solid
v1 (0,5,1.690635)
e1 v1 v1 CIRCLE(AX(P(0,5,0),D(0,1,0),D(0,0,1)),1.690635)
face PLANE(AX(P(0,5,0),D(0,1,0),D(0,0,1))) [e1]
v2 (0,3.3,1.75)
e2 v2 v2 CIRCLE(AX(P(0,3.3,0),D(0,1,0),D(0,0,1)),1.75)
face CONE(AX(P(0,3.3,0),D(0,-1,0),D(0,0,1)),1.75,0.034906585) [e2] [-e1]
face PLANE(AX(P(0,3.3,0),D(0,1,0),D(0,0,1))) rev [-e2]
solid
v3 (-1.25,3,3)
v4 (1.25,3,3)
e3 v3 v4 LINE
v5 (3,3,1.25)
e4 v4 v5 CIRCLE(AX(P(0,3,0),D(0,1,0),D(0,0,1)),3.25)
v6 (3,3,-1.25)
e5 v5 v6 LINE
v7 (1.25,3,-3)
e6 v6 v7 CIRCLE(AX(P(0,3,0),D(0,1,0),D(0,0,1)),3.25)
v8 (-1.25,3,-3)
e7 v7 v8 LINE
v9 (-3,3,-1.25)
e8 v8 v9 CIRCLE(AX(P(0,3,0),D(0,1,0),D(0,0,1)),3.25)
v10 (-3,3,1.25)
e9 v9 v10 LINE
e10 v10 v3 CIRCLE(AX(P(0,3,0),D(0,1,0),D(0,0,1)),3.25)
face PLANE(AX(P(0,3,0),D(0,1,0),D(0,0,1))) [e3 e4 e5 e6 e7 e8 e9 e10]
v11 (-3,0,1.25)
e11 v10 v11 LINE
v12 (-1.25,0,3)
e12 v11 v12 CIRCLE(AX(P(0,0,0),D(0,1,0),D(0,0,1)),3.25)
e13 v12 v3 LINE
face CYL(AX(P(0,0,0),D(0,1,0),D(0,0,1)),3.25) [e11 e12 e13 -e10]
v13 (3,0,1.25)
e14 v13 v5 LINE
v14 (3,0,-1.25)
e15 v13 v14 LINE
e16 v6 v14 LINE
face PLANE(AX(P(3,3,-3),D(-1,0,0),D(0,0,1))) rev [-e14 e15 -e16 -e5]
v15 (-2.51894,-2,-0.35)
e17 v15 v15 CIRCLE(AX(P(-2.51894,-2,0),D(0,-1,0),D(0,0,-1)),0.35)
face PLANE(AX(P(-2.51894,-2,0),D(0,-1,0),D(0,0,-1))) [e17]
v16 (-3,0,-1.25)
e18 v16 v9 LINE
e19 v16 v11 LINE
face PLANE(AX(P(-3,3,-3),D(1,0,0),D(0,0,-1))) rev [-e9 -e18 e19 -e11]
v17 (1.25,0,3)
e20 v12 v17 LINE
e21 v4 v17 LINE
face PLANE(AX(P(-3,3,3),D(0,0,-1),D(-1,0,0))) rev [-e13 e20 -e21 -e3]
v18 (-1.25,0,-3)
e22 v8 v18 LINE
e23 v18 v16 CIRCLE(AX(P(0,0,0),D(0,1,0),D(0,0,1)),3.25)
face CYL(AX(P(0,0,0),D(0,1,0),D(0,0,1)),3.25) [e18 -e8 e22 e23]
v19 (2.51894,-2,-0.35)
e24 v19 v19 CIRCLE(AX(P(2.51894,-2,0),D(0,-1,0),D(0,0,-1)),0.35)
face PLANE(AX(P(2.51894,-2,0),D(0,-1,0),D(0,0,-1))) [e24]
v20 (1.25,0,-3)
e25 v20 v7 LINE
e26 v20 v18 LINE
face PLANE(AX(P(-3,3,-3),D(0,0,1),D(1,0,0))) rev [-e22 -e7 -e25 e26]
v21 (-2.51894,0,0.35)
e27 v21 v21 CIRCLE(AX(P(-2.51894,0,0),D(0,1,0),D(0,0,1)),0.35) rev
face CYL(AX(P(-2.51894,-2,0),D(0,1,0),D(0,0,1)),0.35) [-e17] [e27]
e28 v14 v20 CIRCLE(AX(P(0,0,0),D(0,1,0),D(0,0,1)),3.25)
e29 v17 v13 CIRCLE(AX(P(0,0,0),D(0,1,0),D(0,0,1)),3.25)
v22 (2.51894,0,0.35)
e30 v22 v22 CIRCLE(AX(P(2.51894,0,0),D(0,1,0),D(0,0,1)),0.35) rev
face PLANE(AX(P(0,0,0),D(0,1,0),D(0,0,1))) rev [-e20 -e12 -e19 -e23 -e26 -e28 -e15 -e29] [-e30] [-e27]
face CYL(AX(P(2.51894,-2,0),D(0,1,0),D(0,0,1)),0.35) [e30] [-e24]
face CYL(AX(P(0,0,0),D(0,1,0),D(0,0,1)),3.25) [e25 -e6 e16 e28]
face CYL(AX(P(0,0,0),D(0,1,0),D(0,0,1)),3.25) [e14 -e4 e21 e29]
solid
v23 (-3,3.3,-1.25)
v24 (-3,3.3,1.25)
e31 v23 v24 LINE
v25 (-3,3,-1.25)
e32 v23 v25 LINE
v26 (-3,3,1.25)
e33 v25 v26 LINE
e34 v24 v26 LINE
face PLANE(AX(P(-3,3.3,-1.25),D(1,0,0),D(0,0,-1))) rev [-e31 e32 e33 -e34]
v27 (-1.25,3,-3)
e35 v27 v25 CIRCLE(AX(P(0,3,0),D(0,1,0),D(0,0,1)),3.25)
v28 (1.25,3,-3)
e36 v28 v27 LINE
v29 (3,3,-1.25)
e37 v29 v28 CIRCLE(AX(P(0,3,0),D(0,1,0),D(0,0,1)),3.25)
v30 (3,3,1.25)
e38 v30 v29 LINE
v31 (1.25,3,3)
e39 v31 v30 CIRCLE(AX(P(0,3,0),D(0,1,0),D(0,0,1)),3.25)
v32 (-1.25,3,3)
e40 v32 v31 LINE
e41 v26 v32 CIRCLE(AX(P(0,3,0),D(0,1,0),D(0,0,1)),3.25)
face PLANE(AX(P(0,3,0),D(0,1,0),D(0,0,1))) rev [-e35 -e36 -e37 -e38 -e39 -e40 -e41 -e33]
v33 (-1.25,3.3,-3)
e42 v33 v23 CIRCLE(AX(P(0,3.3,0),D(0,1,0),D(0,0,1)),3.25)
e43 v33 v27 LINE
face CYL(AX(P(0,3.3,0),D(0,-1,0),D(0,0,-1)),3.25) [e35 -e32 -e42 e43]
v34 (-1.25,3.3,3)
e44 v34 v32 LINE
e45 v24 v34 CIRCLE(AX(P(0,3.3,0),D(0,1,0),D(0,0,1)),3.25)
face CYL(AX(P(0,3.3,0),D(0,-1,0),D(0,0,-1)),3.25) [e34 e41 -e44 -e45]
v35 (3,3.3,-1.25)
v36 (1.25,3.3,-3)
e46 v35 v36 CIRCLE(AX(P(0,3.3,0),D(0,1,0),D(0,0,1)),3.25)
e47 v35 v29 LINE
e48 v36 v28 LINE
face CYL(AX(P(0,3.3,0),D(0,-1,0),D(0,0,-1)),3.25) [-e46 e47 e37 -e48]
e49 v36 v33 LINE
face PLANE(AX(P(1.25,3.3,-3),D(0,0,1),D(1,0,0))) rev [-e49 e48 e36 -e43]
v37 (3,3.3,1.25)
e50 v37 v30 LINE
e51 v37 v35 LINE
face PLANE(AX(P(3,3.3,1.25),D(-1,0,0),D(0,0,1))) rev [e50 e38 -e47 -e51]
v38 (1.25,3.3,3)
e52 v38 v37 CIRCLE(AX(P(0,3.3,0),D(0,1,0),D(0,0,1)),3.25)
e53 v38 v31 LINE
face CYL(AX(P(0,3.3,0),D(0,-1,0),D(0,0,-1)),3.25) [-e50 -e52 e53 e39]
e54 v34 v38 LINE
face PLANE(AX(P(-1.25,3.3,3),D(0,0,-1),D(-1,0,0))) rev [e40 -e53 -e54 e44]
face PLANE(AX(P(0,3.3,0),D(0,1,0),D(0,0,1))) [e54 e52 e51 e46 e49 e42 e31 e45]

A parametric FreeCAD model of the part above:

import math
import FreeCAD as App
import Part
import Sketcher

V = App.Vector


def add_polygon(sketch, points):
    """Adds a closed chain of lines whose ends are joined by coincident constraints."""
    first, n = sketch.GeometryCount, len(points)
    for a, b in zip(points, points[1:] + points[:1]):
        sketch.addGeometry(Part.LineSegment(App.Vector(*a, 0), App.Vector(*b, 0)), False)
    for i in range(n):
        sketch.addConstraint(Sketcher.Constraint("Coincident", first + i, 2, first + (i + 1) % n, 1))

doc = App.newDocument("Part")
body = doc.addObject("PartDesign::Body", "Body")

sketch1 = body.newObject("Sketcher::SketchObject", "Sketch")
sketch1.AttachmentSupport = (doc.getObject("XZ_Plane"), [""])
sketch1.MapMode = "FlatFace"
add_polygon(sketch1, [(-3, -3), (-3, 3), (3, 3), (3, -3)])
sketch1.addConstraint(Sketcher.Constraint("Vertical", 0))
sketch1.addConstraint(Sketcher.Constraint("Horizontal", 1))
sketch1.addConstraint(Sketcher.Constraint("Vertical", 2))
sketch1.addConstraint(Sketcher.Constraint("Horizontal", 3))
sketch1.addConstraint(Sketcher.Constraint("Symmetric", 0, 2, 2, 2, -1, 1))
sketch1.addConstraint(Sketcher.Constraint("Equal", 3, 0))
sketch1.addConstraint(Sketcher.Constraint("DistanceX", 1, 1, 1, 2, 6.0))
pad1 = body.newObject("PartDesign::Pad", "Pad")
pad1.Profile = sketch1
pad1.Length = 3
pad1.Reversed = True

sketch2 = body.newObject("Sketcher::SketchObject", "Sketch001")
sketch2.AttachmentSupport = (doc.getObject("XZ_Plane"), [""])
sketch2.MapMode = "FlatFace"
sketch2.AttachmentOffset = App.Placement(V(0, 0, -3), App.Rotation())
add_polygon(sketch2, [(-4.9, -4.9), (-4.9, 4.9), (4.9, 4.9), (4.9, -4.9)])
sketch2.addGeometry(Part.Circle(V(0, 0, 0), V(0, 0, 1), 3.2), False)
sketch2.addConstraint(Sketcher.Constraint("Vertical", 0))
sketch2.addConstraint(Sketcher.Constraint("Horizontal", 1))
sketch2.addConstraint(Sketcher.Constraint("Vertical", 2))
sketch2.addConstraint(Sketcher.Constraint("Horizontal", 3))
sketch2.addConstraint(Sketcher.Constraint("Coincident", 4, 3, -1, 1))
sketch2.addConstraint(Sketcher.Constraint("Symmetric", 0, 2, 2, 2, -1, 1))
sketch2.addConstraint(Sketcher.Constraint("Equal", 3, 0))
sketch2.addConstraint(Sketcher.Constraint("Diameter", 4, 6.5))
sketch2.addConstraint(Sketcher.Constraint("DistanceX", 1, 1, 1, 2, 9.8))
pocket1 = body.newObject("PartDesign::Pocket", "Pocket")
pocket1.Profile = sketch2
pocket1.Type = "ThroughAll"
pocket1.Reversed = True

sketch3 = body.newObject("Sketcher::SketchObject", "Sketch002")
sketch3.AttachmentSupport = (doc.getObject("XZ_Plane"), [""])
sketch3.MapMode = "FlatFace"
sketch3.addGeometry(Part.Circle(V(-2.52, 0, 0), V(0, 0, 1), 0.35), False)
sketch3.addGeometry(Part.Circle(V(2.52, 0, 0), V(0, 0, 1), 0.35), False)
sketch3.addConstraint(Sketcher.Constraint("Equal", 0, 1))
sketch3.addConstraint(Sketcher.Constraint("Symmetric", 0, 3, 1, 3, -1, 1))
sketch3.addConstraint(Sketcher.Constraint("PointOnObject", 0, 3, -1))
sketch3.addConstraint(Sketcher.Constraint("Diameter", 0, 0.7))
sketch3.addConstraint(Sketcher.Constraint("DistanceX", 0, 3, -1, 1, 2.51894))
pad2 = body.newObject("PartDesign::Pad", "Pad001")
pad2.Profile = sketch3
pad2.Length = 2
body2 = doc.addObject("PartDesign::Body", "Body001")

sketch4 = body2.newObject("Sketcher::SketchObject", "Sketch003")
sketch4.AttachmentSupport = (doc.getObject("XZ_Plane001"), [""])
sketch4.MapMode = "FlatFace"
sketch4.AttachmentOffset = App.Placement(V(0, 0, -3), App.Rotation())
sketch4.addGeometry(Part.LineSegment(V(-1.2, 3, 0), V(1.2, 3, 0)), False)
sketch4.addGeometry(Part.ArcOfCircle(Part.Circle(V(0, 0, 0), V(0, 0, 1), 3.2), math.radians(23), math.radians(67)), False)
sketch4.addGeometry(Part.LineSegment(V(3, 1.2, 0), V(3, -1.2, 0)), False)
sketch4.addGeometry(Part.ArcOfCircle(Part.Circle(V(0, 0, 0), V(0, 0, 1), 3.2), math.radians(-67), math.radians(-23)), False)
sketch4.addGeometry(Part.LineSegment(V(1.2, -3, 0), V(-1.2, -3, 0)), False)
sketch4.addGeometry(Part.ArcOfCircle(Part.Circle(V(0, 0, 0), V(0, 0, 1), 3.2), math.radians(-157), math.radians(-113)), False)
sketch4.addGeometry(Part.LineSegment(V(-3, -1.2, 0), V(-3, 1.2, 0)), False)
sketch4.addGeometry(Part.ArcOfCircle(Part.Circle(V(0, 0, 0), V(0, 0, 1), 3.2), math.radians(113), math.radians(157)), False)
sketch4.addConstraint(Sketcher.Constraint("Coincident", 0, 2, 1, 2))
sketch4.addConstraint(Sketcher.Constraint("Coincident", 1, 1, 2, 1))
sketch4.addConstraint(Sketcher.Constraint("Coincident", 2, 2, 3, 2))
sketch4.addConstraint(Sketcher.Constraint("Coincident", 3, 1, 4, 1))
sketch4.addConstraint(Sketcher.Constraint("Coincident", 4, 2, 5, 2))
sketch4.addConstraint(Sketcher.Constraint("Coincident", 5, 1, 6, 1))
sketch4.addConstraint(Sketcher.Constraint("Coincident", 6, 2, 7, 2))
sketch4.addConstraint(Sketcher.Constraint("Coincident", 7, 1, 0, 1))
sketch4.addConstraint(Sketcher.Constraint("Horizontal", 0))
sketch4.addConstraint(Sketcher.Constraint("Vertical", 2))
sketch4.addConstraint(Sketcher.Constraint("Horizontal", 4))
sketch4.addConstraint(Sketcher.Constraint("Vertical", 6))
sketch4.addConstraint(Sketcher.Constraint("Coincident", 1, 3, -1, 1))
sketch4.addConstraint(Sketcher.Constraint("Coincident", 3, 3, -1, 1))
sketch4.addConstraint(Sketcher.Constraint("Coincident", 5, 3, -1, 1))
sketch4.addConstraint(Sketcher.Constraint("Coincident", 7, 3, -1, 1))
sketch4.addConstraint(Sketcher.Constraint("Equal", 1, 3))
sketch4.addConstraint(Sketcher.Constraint("Equal", 3, 5))
sketch4.addConstraint(Sketcher.Constraint("Equal", 5, 7))
sketch4.addConstraint(Sketcher.Constraint("Horizontal", 2, 2, 5, 1))
sketch4.addConstraint(Sketcher.Constraint("Vertical", 0, 2, 3, 1))
sketch4.addConstraint(Sketcher.Constraint("Equal", 4, 2))
sketch4.addConstraint(Sketcher.Constraint("Radius", 1, 3.25))
sketch4.addConstraint(Sketcher.Constraint("DistanceX", 0, 1, 0, 2, 2.5))
pad3 = body2.newObject("PartDesign::Pad", "Pad002")
pad3.Profile = sketch4
pad3.Length = 0.3
pad3.Reversed = True
body3 = doc.addObject("PartDesign::Body", "Body002")

sketch5 = body3.newObject("Sketcher::SketchObject", "Sketch004")
sketch5.AttachmentSupport = (doc.getObject("XZ_Plane002"), [""])
sketch5.MapMode = "FlatFace"
sketch5.AttachmentOffset = App.Placement(V(0, 0, -3.3), App.Rotation())
sketch5.addGeometry(Part.Circle(V(0, 0, 0), V(0, 0, 1), 1.8), False)
sketch5.addConstraint(Sketcher.Constraint("Coincident", 0, 3, -1, 1))
sketch5.addConstraint(Sketcher.Constraint("Diameter", 0, 3.5))
pad4 = body3.newObject("PartDesign::Pad", "Pad003")
pad4.Profile = sketch5
pad4.Length = 1.7
pad4.Reversed = True
pad4.TaperAngle = -2

doc.recompute()
